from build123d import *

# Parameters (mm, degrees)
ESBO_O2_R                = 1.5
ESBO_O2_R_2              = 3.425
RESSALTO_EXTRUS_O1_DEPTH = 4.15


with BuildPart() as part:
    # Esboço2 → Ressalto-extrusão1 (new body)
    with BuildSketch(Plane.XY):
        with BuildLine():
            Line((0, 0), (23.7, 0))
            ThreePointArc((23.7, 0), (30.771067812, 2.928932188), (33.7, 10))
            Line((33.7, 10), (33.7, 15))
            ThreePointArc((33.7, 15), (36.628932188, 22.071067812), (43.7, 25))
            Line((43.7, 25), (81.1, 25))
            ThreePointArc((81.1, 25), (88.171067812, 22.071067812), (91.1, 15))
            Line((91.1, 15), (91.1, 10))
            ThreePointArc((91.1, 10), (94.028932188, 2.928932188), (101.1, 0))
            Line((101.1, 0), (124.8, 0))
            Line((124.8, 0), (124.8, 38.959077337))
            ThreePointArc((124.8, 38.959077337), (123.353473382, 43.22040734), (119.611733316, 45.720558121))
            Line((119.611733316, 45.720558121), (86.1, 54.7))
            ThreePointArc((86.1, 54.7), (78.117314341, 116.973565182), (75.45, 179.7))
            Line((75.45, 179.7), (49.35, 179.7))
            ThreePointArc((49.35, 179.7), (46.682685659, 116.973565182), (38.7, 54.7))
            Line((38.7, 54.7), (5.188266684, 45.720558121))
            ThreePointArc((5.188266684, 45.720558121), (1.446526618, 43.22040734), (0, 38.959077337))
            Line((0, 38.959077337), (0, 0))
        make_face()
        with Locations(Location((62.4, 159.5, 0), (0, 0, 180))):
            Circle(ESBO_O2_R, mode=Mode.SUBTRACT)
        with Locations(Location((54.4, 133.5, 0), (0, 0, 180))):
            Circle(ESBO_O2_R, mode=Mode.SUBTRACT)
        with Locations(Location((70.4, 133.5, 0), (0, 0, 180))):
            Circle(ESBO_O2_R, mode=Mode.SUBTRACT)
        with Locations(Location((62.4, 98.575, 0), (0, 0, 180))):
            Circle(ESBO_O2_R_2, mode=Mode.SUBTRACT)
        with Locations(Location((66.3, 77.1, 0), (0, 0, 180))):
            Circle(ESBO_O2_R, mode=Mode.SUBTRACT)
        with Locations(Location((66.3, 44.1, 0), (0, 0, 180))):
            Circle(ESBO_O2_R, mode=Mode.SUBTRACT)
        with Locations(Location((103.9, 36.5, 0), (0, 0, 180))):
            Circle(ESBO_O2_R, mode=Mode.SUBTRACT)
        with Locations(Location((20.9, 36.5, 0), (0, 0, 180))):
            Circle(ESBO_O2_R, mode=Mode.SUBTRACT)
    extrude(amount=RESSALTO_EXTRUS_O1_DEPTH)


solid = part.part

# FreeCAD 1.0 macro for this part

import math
import FreeCAD as App
import Part
import Sketcher

V = App.Vector
Q = App.Units.Quantity

doc = App.newDocument("Part")
body = doc.addObject("PartDesign::Body", "Body")

# Sketch on XY plane
sketch1 = body.newObject("Sketcher::SketchObject", "Sketch")
sketch1.AttachmentSupport = (doc.getObject("XY_Plane"), [""])
sketch1.MapMode = "FlatFace"
sketch1.addGeometry(Part.LineSegment(V(0, 0, 0), V(23.7, 0, 0)), False)
sketch1.addGeometry(Part.ArcOfCircle(Part.Circle(V(23.7, 10, 0), V(0, 0, 1), 10), math.radians(-90), math.radians(0)), False)
sketch1.addGeometry(Part.LineSegment(V(33.7, 10, 0), V(33.7, 15, 0)), False)
sketch1.addGeometry(Part.ArcOfCircle(Part.Circle(V(43.7, 15, 0), V(0, 0, 1), 10), math.radians(90), math.radians(180)), False)
sketch1.addGeometry(Part.LineSegment(V(43.7, 25, 0), V(81.1, 25, 0)), False)
sketch1.addGeometry(Part.ArcOfCircle(Part.Circle(V(81.1, 15, 0), V(0, 0, 1), 10), math.radians(0), math.radians(90)), False)
sketch1.addGeometry(Part.LineSegment(V(91.1, 15, 0), V(91.1, 10, 0)), False)
sketch1.addGeometry(Part.ArcOfCircle(Part.Circle(V(101.1, 10, 0), V(0, 0, 1), 10), math.radians(180), math.radians(270)), False)
sketch1.addGeometry(Part.LineSegment(V(101.1, 0, 0), V(124.8, 0, 0)), False)
sketch1.addGeometry(Part.LineSegment(V(124.8, 0, 0), V(124.8, 38.959077, 0)), False)
sketch1.addGeometry(Part.ArcOfCircle(Part.Circle(V(117.8, 38.959077, 0), V(0, 0, 1), 7), math.radians(0), math.radians(75)), False)
sketch1.addGeometry(Part.LineSegment(V(119.611733, 45.720558, 0), V(86.1, 54.7, 0)), False)
sketch1.addGeometry(Part.ArcOfCircle(Part.Circle(V(814.343075, 179.7, 0), V(0, 0, 1), 738.893075), math.radians(-180), math.radians(-170.260321)), False)
sketch1.addGeometry(Part.LineSegment(V(75.45, 179.7, 0), V(49.35, 179.7, 0)), False)
sketch1.addGeometry(Part.ArcOfCircle(Part.Circle(V(-689.543075, 179.7, 0), V(0, 0, 1), 738.893075), math.radians(-9.739679), math.radians(0)), False)
sketch1.addGeometry(Part.LineSegment(V(38.7, 54.7, 0), V(5.188267, 45.720558, 0)), False)
sketch1.addGeometry(Part.ArcOfCircle(Part.Circle(V(7, 38.959077, 0), V(0, 0, 1), 7), math.radians(105), math.radians(180)), False)
sketch1.addGeometry(Part.LineSegment(V(0, 38.959077, 0), V(0, 0, 0)), False)
sketch1.addGeometry(Part.Circle(V(20.9, 36.5, 0), V(0, 0, 1), 1.5), False)
sketch1.addGeometry(Part.Circle(V(66.3, 44.1, 0), V(0, 0, 1), 1.5), False)
sketch1.addGeometry(Part.Circle(V(103.9, 36.5, 0), V(0, 0, 1), 1.5), False)
sketch1.addGeometry(Part.Circle(V(66.3, 77.1, 0), V(0, 0, 1), 1.5), False)
sketch1.addGeometry(Part.Circle(V(54.4, 133.5, 0), V(0, 0, 1), 1.5), False)
sketch1.addGeometry(Part.Circle(V(62.4, 98.575, 0), V(0, 0, 1), 3.425), False)
sketch1.addGeometry(Part.Circle(V(70.4, 133.5, 0), V(0, 0, 1), 1.5), False)
sketch1.addGeometry(Part.Circle(V(62.4, 159.5, 0), V(0, 0, 1), 1.5), False)
sketch1.addConstraint(Sketcher.Constraint("Tangent", 0, 2, 1, 1))
sketch1.addConstraint(Sketcher.Constraint("Tangent", 1, 2, 2, 1))
sketch1.addConstraint(Sketcher.Constraint("Tangent", 2, 2, 3, 2))
sketch1.addConstraint(Sketcher.Constraint("Tangent", 3, 1, 4, 1))
sketch1.addConstraint(Sketcher.Constraint("Tangent", 4, 2, 5, 2))
sketch1.addConstraint(Sketcher.Constraint("Tangent", 5, 1, 6, 1))
sketch1.addConstraint(Sketcher.Constraint("Tangent", 6, 2, 7, 1))
sketch1.addConstraint(Sketcher.Constraint("Tangent", 7, 2, 8, 1))
sketch1.addConstraint(Sketcher.Constraint("Coincident", 8, 2, 9, 1))
sketch1.addConstraint(Sketcher.Constraint("Tangent", 9, 2, 10, 1))
sketch1.addConstraint(Sketcher.Constraint("Tangent", 10, 2, 11, 1))
sketch1.addConstraint(Sketcher.Constraint("Coincident", 11, 2, 12, 2))
sketch1.addConstraint(Sketcher.Constraint("Coincident", 12, 1, 13, 1))
sketch1.addConstraint(Sketcher.Constraint("Coincident", 13, 2, 14, 2))
sketch1.addConstraint(Sketcher.Constraint("Coincident", 14, 1, 15, 1))
sketch1.addConstraint(Sketcher.Constraint("Tangent", 15, 2, 16, 1))
sketch1.addConstraint(Sketcher.Constraint("Tangent", 16, 2, 17, 1))
sketch1.addConstraint(Sketcher.Constraint("Coincident", 17, 2, 0, 1))
sketch1.addConstraint(Sketcher.Constraint("Horizontal", 0))
sketch1.addConstraint(Sketcher.Constraint("Vertical", 2))
sketch1.addConstraint(Sketcher.Constraint("Horizontal", 4))
sketch1.addConstraint(Sketcher.Constraint("Vertical", 6))
sketch1.addConstraint(Sketcher.Constraint("Horizontal", 8))
sketch1.addConstraint(Sketcher.Constraint("Vertical", 9))
sketch1.addConstraint(Sketcher.Constraint("Horizontal", 13))
sketch1.addConstraint(Sketcher.Constraint("Vertical", 17))
sketch1.addConstraint(Sketcher.Constraint("Coincident", 17, 2, -1, 1))
sketch1.addConstraint(Sketcher.Constraint("Equal", 1, 3))
sketch1.addConstraint(Sketcher.Constraint("Equal", 3, 5))
sketch1.addConstraint(Sketcher.Constraint("Equal", 5, 7))
sketch1.addConstraint(Sketcher.Constraint("Equal", 12, 14))
sketch1.addConstraint(Sketcher.Constraint("Equal", 10, 16))
sketch1.addConstraint(Sketcher.Constraint("Equal", 18, 19))
sketch1.addConstraint(Sketcher.Constraint("Equal", 19, 20))
sketch1.addConstraint(Sketcher.Constraint("Equal", 20, 21))
sketch1.addConstraint(Sketcher.Constraint("Equal", 21, 22))
sketch1.addConstraint(Sketcher.Constraint("Equal", 22, 24))
sketch1.addConstraint(Sketcher.Constraint("Equal", 24, 25))
sketch1.addConstraint(Sketcher.Constraint("PointOnObject", 7, 2, -1))
sketch1.addConstraint(Sketcher.Constraint("Horizontal", 12, 3, 14, 3))
sketch1.addConstraint(Sketcher.Constraint("Horizontal", 10, 3, 16, 3))
sketch1.addConstraint(Sketcher.Constraint("Horizontal", 18, 3, 20, 3))
sketch1.addConstraint(Sketcher.Constraint("Horizontal", 22, 3, 24, 3))
sketch1.addConstraint(Sketcher.Constraint("Horizontal", 10, 2, 15, 2))
sketch1.addConstraint(Sketcher.Constraint("Vertical", 19, 3, 21, 3))
sketch1.addConstraint(Sketcher.Constraint("Vertical", 23, 3, 25, 3))
sketch1.addConstraint(Sketcher.Constraint("Equal", 0, 8))
sketch1.addConstraint(Sketcher.Constraint("Equal", 11, 15))
sketch1.addConstraint(Sketcher.Constraint("Diameter", 18, Q("3 mm")))
sketch1.addConstraint(Sketcher.Constraint("Radius", 1, Q("10 mm")))
sketch1.addConstraint(Sketcher.Constraint("Radius", 10, Q("7 mm")))
sketch1.addConstraint(Sketcher.Constraint("Diameter", 23, Q("6.85 mm")))
sketch1.addConstraint(Sketcher.Constraint("DistanceY", 2, 1, 2, 2, Q("5 mm")))
sketch1.addConstraint(Sketcher.Constraint("Angle", 11, Q("165 deg")))
sketch1.addConstraint(Sketcher.Constraint("DistanceX", 0, 1, 0, 2, Q("23.7 mm")))
sketch1.addConstraint(Sketcher.Constraint("DistanceX", 4, 1, 4, 2, Q("37.4 mm")))
sketch1.addConstraint(Sketcher.Constraint("DistanceX", 13, 2, 13, 1, Q("26.1 mm")))
sketch1.addConstraint(Sketcher.Constraint("DistanceY", 19, 3, 21, 3, Q("33 mm")))
sketch1.addConstraint(Sketcher.Constraint("DistanceY", 18, 3, 22, 3, Q("97 mm")))
sketch1.addConstraint(Sketcher.Constraint("DistanceX", 22, 3, 23, 3, Q("8 mm")))
sketch1.addConstraint(Sketcher.Constraint("DistanceX", 22, 3, 24, 3, Q("16 mm")))
sketch1.addConstraint(Sketcher.Constraint("DistanceY", 22, 3, 25, 3, Q("26 mm")))
sketch1.addConstraint(Sketcher.Constraint("DistanceX", 4, 2, 11, 2, Q("5 mm")))
sketch1.addConstraint(Sketcher.Constraint("DistanceY", -1, 1, 12, 3, Q("179.7 mm")))
sketch1.addConstraint(Sketcher.Constraint("DistanceX", -1, 1, 18, 3, Q("20.9 mm")))
sketch1.addConstraint(Sketcher.Constraint("DistanceY", -1, 1, 18, 3, Q("36.5 mm")))
sketch1.addConstraint(Sketcher.Constraint("DistanceX", -1, 1, 19, 3, Q("66.3 mm")))
sketch1.addConstraint(Sketcher.Constraint("DistanceY", -1, 1, 19, 3, Q("44.1 mm")))
sketch1.addConstraint(Sketcher.Constraint("DistanceX", -1, 1, 20, 3, Q("103.9 mm")))
sketch1.addConstraint(Sketcher.Constraint("DistanceX", -1, 1, 22, 3, Q("54.4 mm")))
sketch1.addConstraint(Sketcher.Constraint("DistanceY", -1, 1, 11, 2, Q("54.7 mm")))
sketch1.addConstraint(Sketcher.Constraint("DistanceY", -1, 1, 13, 2, Q("179.7 mm")))
sketch1.addConstraint(Sketcher.Constraint("DistanceY", -1, 1, 23, 3, Q("98.575 mm")))
pad1 = body.newObject("PartDesign::Pad", "Pad")
pad1.Profile = sketch1
pad1.Length = 4.15

doc.recompute()
